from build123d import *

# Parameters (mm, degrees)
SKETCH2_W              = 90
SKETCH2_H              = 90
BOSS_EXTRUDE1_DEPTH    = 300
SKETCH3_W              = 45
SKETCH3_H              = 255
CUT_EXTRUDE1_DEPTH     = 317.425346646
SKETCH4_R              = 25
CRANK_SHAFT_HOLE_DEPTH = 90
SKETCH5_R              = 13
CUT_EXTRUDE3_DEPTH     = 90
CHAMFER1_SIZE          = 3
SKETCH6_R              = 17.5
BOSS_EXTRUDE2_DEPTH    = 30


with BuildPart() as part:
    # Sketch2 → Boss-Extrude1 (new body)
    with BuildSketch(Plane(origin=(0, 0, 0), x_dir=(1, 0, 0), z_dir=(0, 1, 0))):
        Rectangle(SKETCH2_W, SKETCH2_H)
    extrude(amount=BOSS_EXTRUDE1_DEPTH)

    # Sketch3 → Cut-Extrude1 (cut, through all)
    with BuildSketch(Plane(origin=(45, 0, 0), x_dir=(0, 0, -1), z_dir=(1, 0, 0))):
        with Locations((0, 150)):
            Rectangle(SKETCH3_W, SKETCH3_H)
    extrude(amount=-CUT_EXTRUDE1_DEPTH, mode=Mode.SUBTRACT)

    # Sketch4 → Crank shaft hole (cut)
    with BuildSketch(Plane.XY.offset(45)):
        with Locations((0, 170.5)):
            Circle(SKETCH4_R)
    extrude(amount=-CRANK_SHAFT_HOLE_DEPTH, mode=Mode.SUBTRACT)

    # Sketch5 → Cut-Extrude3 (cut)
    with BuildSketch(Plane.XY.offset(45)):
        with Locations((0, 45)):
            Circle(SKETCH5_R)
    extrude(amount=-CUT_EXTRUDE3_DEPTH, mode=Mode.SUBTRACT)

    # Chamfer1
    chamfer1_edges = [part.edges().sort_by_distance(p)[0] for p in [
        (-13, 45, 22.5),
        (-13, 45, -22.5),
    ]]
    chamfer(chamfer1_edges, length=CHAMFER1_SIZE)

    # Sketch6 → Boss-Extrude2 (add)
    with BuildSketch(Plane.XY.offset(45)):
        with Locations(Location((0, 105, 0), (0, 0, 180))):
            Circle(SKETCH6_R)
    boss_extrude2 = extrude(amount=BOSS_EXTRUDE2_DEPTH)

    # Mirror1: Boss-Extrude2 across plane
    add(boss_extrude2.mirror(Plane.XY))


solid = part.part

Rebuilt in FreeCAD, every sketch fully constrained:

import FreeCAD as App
import Part
import Sketcher
Q = App.Units.Quantity


def edges_at(feature, points):
    """Names of the edges that pass closest to the given points."""
    edges = feature.Shape.Edges
    near = lambda p: min(range(len(edges)), key=lambda i: edges[i].distToShape(Part.Vertex(*p))[0])
    return sorted({f"Edge{near(p) + 1}" for p in points})

doc = App.newDocument("Part")
body = doc.addObject("PartDesign::Body", "Body")

# Sketch on XZ plane
sketch1 = body.newObject("Sketcher::SketchObject", "Sketch")
sketch1.AttachmentSupport = (doc.getObject("XZ_Plane"), [""])
sketch1.MapMode = "FlatFace"
sketch1.addGeometry([
    Part.LineSegment(App.Vector(-45, -45, 0), App.Vector(-45, 45, 0)),
    Part.LineSegment(App.Vector(-45, 45, 0), App.Vector(45, 45, 0)),
    Part.LineSegment(App.Vector(45, 45, 0), App.Vector(45, -45, 0)),
    Part.LineSegment(App.Vector(45, -45, 0), App.Vector(-45, -45, 0)),
], False)
sketch1.addConstraint([
    Sketcher.Constraint("Coincident", 0, 2, 1, 1),
    Sketcher.Constraint("Coincident", 1, 2, 2, 1),
    Sketcher.Constraint("Coincident", 2, 2, 3, 1),
    Sketcher.Constraint("Coincident", 3, 2, 0, 1),
    Sketcher.Constraint("Vertical", 0),
    Sketcher.Constraint("Horizontal", 1),
    Sketcher.Constraint("Vertical", 2),
    Sketcher.Constraint("Horizontal", 3),
    Sketcher.Constraint("Symmetric", 0, 2, 2, 2, -1, 1),
    Sketcher.Constraint("Equal", 3, 0),
    Sketcher.Constraint("DistanceX", 1, 1, 1, 2, Q("90 mm")),
])
pad1 = body.newObject("PartDesign::Pad", "Pad")
pad1.Profile = sketch1
pad1.Length = 300
pad1.Reversed = True

# Sketch on YZ plane
sketch2 = body.newObject("Sketcher::SketchObject", "Sketch001")
sketch2.AttachmentSupport = (doc.getObject("YZ_Plane"), [""])
sketch2.MapMode = "FlatFace"
sketch2.AttachmentOffset = App.Placement(App.Vector(0, 0, 45), App.Rotation())
sketch2.addGeometry([
    Part.LineSegment(App.Vector(277.5, 22.5, 0), App.Vector(22.5, 22.5, 0)),
    Part.LineSegment(App.Vector(22.5, 22.5, 0), App.Vector(22.5, -22.5, 0)),
    Part.LineSegment(App.Vector(22.5, -22.5, 0), App.Vector(277.5, -22.5, 0)),
    Part.LineSegment(App.Vector(277.5, -22.5, 0), App.Vector(277.5, 22.5, 0)),
], False)
sketch2.addConstraint([
    Sketcher.Constraint("Coincident", 0, 2, 1, 1),
    Sketcher.Constraint("Coincident", 1, 2, 2, 1),
    Sketcher.Constraint("Coincident", 2, 2, 3, 1),
    Sketcher.Constraint("Coincident", 3, 2, 0, 1),
    Sketcher.Constraint("Horizontal", 0),
    Sketcher.Constraint("Vertical", 1),
    Sketcher.Constraint("Horizontal", 2),
    Sketcher.Constraint("Vertical", 3),
    Sketcher.Constraint("DistanceX", 0, 2, 0, 1, Q("255 mm")),
    Sketcher.Constraint("DistanceY", 1, 2, 1, 1, Q("45 mm")),
    Sketcher.Constraint("DistanceX", -1, 1, 0, 2, Q("22.5 mm")),
    Sketcher.Constraint("DistanceY", -1, 1, 0, 2, Q("22.5 mm")),
])
pocket1 = body.newObject("PartDesign::Pocket", "Pocket")
pocket1.Profile = sketch2
pocket1.Type = "ThroughAll"

# Sketch on XY plane
sketch3 = body.newObject("Sketcher::SketchObject", "Sketch002")
sketch3.AttachmentSupport = (doc.getObject("XY_Plane"), [""])
sketch3.MapMode = "FlatFace"
sketch3.AttachmentOffset = App.Placement(App.Vector(0, 0, 45), App.Rotation())
sketch3.addGeometry(Part.Circle(App.Vector(0, 170.5, 0), App.Vector(0, 0, 1), 25), False)
sketch3.addConstraint([
    Sketcher.Constraint("PointOnObject", 0, 3, -2),
    Sketcher.Constraint("Diameter", 0, Q("50 mm")),
    Sketcher.Constraint("DistanceY", -1, 1, 0, 3, Q("170.5 mm")),
])
pocket2 = body.newObject("PartDesign::Pocket", "Pocket001")
pocket2.Profile = sketch3
pocket2.Length = 90

# Sketch on XY plane
sketch4 = body.newObject("Sketcher::SketchObject", "Sketch003")
sketch4.AttachmentSupport = (doc.getObject("XY_Plane"), [""])
sketch4.MapMode = "FlatFace"
sketch4.AttachmentOffset = App.Placement(App.Vector(0, 0, 45), App.Rotation())
sketch4.addGeometry(Part.Circle(App.Vector(0, 45, 0), App.Vector(0, 0, 1), 13), False)
sketch4.addConstraint([
    Sketcher.Constraint("PointOnObject", 0, 3, -2),
    Sketcher.Constraint("Diameter", 0, Q("26 mm")),
    Sketcher.Constraint("DistanceY", -1, 1, 0, 3, Q("45 mm")),
])
pocket3 = body.newObject("PartDesign::Pocket", "Pocket002")
pocket3.Profile = sketch4
pocket3.Length = 90
doc.recompute()

chamfer = body.newObject("PartDesign::Chamfer", "Chamfer")
chamfer.Base = (pocket3, edges_at(pocket3, [(-13, 45, 22.5), (-13, 45, -22.5)]))
chamfer.Size = 3

# Sketch on XY plane
sketch5 = body.newObject("Sketcher::SketchObject", "Sketch004")
sketch5.AttachmentSupport = (doc.getObject("XY_Plane"), [""])
sketch5.MapMode = "FlatFace"
sketch5.AttachmentOffset = App.Placement(App.Vector(0, 0, 45), App.Rotation())
sketch5.addGeometry(Part.Circle(App.Vector(0, 105, 0), App.Vector(0, 0, 1), 17.5), False)
sketch5.addConstraint([
    Sketcher.Constraint("PointOnObject", 0, 3, -2),
    Sketcher.Constraint("Diameter", 0, Q("35 mm")),
    Sketcher.Constraint("DistanceY", -1, 1, 0, 3, Q("105 mm")),
])
pad2 = body.newObject("PartDesign::Pad", "Pad001")
pad2.Profile = sketch5
pad2.Length = 30
doc.recompute()

mirrored = body.newObject("PartDesign::Mirrored", "Mirrored")
mirrored.Originals = [pad2]
mirrored.MirrorPlane = (doc.getObject("XY_Plane"), [""])
body.Tip = mirrored

doc.recompute()
